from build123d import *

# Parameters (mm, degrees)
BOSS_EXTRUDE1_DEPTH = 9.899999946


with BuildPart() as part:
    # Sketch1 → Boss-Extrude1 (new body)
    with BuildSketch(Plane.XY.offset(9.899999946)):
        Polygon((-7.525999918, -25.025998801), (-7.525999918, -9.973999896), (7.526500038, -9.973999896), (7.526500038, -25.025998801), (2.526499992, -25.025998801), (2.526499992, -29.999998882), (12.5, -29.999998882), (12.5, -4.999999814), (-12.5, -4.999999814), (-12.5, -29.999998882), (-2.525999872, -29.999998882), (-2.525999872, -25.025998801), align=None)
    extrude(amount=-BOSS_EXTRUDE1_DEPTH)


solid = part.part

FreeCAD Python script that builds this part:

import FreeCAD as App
import Part
import Sketcher

V = App.Vector
Q = App.Units.Quantity


def add_polygon(sketch, points):
    """Adds a closed chain of lines whose ends are joined by coincident constraints."""
    first, n = sketch.GeometryCount, len(points)
    for a, b in zip(points, points[1:] + points[:1]):
        sketch.addGeometry(Part.LineSegment(App.Vector(*a, 0), App.Vector(*b, 0)), False)
    for i in range(n):
        sketch.addConstraint(Sketcher.Constraint("Coincident", first + i, 2, first + (i + 1) % n, 1))

doc = App.newDocument("Part")
body = doc.addObject("PartDesign::Body", "Body")

# Sketch on XY plane
sketch1 = doc.addObject("Sketcher::SketchObject", "Sketch")
body.addObject(sketch1)
sketch1.AttachmentSupport = (doc.XY_Plane, [""])
sketch1.MapMode = "FlatFace"
sketch1.AttachmentOffset = App.Placement(V(0, 0, 9.9), App.Rotation())
add_polygon(sketch1, [(-7.526, -25.025999), (-7.526, -9.974), (7.5265, -9.974), (7.5265, -25.025999), (2.5265, -25.025999), (2.5265, -29.999999), (12.5, -29.999999), (12.5, -5), (-12.5, -5), (-12.5, -29.999999), (-2.526, -29.999999), (-2.526, -25.025999)])  # lines 0-11
sketch1.addConstraint(Sketcher.Constraint("Vertical", 0))
sketch1.addConstraint(Sketcher.Constraint("Horizontal", 1))
sketch1.addConstraint(Sketcher.Constraint("Vertical", 2))
sketch1.addConstraint(Sketcher.Constraint("Horizontal", 3))
sketch1.addConstraint(Sketcher.Constraint("Vertical", 4))
sketch1.addConstraint(Sketcher.Constraint("Horizontal", 5))
sketch1.addConstraint(Sketcher.Constraint("Vertical", 6))
sketch1.addConstraint(Sketcher.Constraint("Horizontal", 7))
sketch1.addConstraint(Sketcher.Constraint("Vertical", 8))
sketch1.addConstraint(Sketcher.Constraint("Horizontal", 9))
sketch1.addConstraint(Sketcher.Constraint("Vertical", 10))
sketch1.addConstraint(Sketcher.Constraint("Horizontal", 11))
sketch1.addConstraint(Sketcher.Constraint("Symmetric", 5, 2, 8, 2, -2))
sketch1.addConstraint(Sketcher.Constraint("Horizontal", 3, 2, 10, 2))
sketch1.addConstraint(Sketcher.Constraint("Equal", 3, 11))
sketch1.addConstraint(Sketcher.Constraint("Equal", 7, 6))
sketch1.addConstraint(Sketcher.Constraint("DistanceX", 3, 2, 3, 1, Q("5 mm")))
sketch1.addConstraint(Sketcher.Constraint("DistanceX", 7, 2, 7, 1, Q("25 mm")))
sketch1.addConstraint(Sketcher.Constraint("DistanceY", 4, 2, -1, 1, Q("29.999999 mm")))
sketch1.addConstraint(Sketcher.Constraint("DistanceX", 9, 1, 9, 2, Q("9.974 mm")))
sketch1.addConstraint(Sketcher.Constraint("DistanceY", 0, 1, 0, 2, Q("15.051999 mm")))
sketch1.addConstraint(Sketcher.Constraint("DistanceY", 4, 2, 4, 1, Q("4.974 mm")))
sketch1.addConstraint(Sketcher.Constraint("DistanceX", 1, 1, 1, 2, Q("15.0525 mm")))
pad1 = doc.addObject("PartDesign::Pad", "Pad")
body.addObject(pad1)
pad1.Profile = sketch1
pad1.Length = 9.9
pad1.Reversed = True

doc.recompute()
